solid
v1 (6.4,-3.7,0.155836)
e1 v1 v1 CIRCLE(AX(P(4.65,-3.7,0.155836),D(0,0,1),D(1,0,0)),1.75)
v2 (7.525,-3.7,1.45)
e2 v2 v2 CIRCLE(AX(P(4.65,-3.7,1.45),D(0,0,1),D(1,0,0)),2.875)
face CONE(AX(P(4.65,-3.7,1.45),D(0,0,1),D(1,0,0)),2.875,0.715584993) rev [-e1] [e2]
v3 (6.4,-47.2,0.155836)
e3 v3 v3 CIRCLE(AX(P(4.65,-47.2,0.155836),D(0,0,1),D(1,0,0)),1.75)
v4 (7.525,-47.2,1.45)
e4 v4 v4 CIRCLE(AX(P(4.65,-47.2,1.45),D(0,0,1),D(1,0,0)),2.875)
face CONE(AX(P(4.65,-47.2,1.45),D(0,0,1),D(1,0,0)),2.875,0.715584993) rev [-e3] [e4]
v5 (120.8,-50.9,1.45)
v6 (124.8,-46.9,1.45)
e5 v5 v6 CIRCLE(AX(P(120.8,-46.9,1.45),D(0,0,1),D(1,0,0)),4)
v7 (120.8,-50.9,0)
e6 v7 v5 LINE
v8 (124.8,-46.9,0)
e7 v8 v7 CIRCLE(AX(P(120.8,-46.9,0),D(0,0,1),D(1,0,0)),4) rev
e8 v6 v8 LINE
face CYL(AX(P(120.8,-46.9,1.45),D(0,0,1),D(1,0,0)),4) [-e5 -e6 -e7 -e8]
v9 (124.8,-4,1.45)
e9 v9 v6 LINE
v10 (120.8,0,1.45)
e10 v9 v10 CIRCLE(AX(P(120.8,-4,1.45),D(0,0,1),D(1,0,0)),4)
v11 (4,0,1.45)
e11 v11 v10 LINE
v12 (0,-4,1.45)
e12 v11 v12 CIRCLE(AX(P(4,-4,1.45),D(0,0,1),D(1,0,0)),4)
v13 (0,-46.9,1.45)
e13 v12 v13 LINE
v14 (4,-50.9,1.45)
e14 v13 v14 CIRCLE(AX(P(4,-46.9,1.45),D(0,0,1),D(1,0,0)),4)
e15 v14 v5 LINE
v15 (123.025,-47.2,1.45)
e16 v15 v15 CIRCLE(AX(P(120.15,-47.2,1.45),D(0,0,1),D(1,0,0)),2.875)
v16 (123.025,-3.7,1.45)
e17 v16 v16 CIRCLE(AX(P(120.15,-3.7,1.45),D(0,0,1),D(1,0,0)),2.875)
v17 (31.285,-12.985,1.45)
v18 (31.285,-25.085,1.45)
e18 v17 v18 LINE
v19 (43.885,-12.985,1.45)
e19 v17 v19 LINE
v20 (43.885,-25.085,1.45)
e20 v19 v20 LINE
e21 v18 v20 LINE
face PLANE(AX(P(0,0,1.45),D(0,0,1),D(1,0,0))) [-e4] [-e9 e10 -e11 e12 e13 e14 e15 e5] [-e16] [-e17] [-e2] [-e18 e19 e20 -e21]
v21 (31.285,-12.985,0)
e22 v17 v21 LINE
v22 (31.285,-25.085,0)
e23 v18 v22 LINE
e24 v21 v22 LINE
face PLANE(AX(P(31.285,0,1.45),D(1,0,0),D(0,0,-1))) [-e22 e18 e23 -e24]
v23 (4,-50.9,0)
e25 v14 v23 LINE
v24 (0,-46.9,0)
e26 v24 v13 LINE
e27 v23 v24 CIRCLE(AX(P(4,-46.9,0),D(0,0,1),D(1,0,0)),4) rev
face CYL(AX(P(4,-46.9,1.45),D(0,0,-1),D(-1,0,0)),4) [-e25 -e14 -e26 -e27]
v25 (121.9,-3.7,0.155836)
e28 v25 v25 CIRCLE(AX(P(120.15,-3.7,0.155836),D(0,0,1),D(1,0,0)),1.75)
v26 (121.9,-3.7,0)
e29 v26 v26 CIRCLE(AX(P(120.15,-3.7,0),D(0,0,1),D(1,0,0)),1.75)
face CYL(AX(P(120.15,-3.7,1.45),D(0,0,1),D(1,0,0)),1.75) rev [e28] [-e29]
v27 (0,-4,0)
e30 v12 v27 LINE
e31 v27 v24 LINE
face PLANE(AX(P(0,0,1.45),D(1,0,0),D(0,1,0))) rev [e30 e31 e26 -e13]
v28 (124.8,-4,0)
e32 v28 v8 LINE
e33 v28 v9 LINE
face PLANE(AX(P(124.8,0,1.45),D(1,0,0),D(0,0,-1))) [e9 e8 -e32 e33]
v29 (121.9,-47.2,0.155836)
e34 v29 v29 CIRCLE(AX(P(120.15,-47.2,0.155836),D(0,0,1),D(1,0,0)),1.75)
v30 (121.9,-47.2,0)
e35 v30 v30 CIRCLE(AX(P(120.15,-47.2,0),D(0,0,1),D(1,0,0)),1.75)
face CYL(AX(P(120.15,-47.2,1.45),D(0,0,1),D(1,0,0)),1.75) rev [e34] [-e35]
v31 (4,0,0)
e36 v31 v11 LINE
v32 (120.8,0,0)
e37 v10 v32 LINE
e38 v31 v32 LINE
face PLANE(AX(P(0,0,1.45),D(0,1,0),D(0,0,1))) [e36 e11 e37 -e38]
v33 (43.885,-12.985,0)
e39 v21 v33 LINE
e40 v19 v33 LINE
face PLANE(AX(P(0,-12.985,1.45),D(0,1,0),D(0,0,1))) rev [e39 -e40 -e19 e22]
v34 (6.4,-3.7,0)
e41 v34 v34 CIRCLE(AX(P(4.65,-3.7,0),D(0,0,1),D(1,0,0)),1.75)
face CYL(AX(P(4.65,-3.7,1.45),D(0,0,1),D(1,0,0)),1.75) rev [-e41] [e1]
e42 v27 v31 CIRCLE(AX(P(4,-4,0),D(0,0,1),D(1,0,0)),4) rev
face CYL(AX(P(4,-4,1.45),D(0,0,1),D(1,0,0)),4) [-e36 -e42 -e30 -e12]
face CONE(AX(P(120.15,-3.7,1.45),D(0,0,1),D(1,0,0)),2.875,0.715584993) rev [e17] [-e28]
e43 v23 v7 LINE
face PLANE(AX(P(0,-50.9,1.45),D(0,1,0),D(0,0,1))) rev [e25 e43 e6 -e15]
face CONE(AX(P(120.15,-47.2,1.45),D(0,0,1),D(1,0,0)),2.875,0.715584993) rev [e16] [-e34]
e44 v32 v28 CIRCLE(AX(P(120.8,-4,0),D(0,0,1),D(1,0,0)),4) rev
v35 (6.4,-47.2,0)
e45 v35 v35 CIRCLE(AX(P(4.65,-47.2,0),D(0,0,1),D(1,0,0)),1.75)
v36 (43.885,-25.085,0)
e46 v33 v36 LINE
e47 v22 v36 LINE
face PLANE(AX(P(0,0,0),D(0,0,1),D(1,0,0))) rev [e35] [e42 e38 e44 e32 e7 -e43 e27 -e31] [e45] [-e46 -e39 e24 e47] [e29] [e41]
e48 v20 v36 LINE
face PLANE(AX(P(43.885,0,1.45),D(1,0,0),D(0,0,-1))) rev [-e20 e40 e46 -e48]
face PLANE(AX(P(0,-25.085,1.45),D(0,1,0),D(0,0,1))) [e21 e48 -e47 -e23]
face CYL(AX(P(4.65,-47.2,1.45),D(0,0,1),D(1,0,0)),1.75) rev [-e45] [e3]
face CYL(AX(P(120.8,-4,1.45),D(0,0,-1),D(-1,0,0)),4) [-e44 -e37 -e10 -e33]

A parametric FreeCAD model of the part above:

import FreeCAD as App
import Part
import Sketcher
from FreeCAD import Vector
Q = App.Units.Quantity


def edges_at(feature, points):
    """Names of the edges that pass closest to the given points."""
    edges = feature.Shape.Edges
    near = lambda p: min(range(len(edges)), key=lambda i: edges[i].distToShape(Part.Vertex(*p))[0])
    return sorted({f"Edge{near(p) + 1}" for p in points})


def add_polygon(sketch, points):
    """Adds a closed chain of lines whose ends are joined by coincident constraints."""
    first, n = sketch.GeometryCount, len(points)
    for a, b in zip(points, points[1:] + points[:1]):
        sketch.addGeometry(Part.LineSegment(App.Vector(*a, 0), App.Vector(*b, 0)), False)
    for i in range(n):
        sketch.addConstraint(Sketcher.Constraint("Coincident", first + i, 2, first + (i + 1) % n, 1))

doc = App.newDocument("Part")
body = doc.addObject("PartDesign::Body", "Body")

sketch1 = body.newObject("Sketcher::SketchObject", "Sketch")
sketch1.AttachmentSupport = (doc.getObject("XY_Plane"), [""])
sketch1.MapMode = "FlatFace"
add_polygon(sketch1, [(0, 0), (0, -51), (125, -51), (125, 0)])
add_polygon(sketch1, [(44, -25), (31, -25), (31, -13), (44, -13)])
sketch1.addConstraint([
    Sketcher.Constraint("Vertical", 0),
    Sketcher.Constraint("Horizontal", 1),
    Sketcher.Constraint("Vertical", 2),
    Sketcher.Constraint("Horizontal", 3),
    Sketcher.Constraint("Horizontal", 4),
    Sketcher.Constraint("Vertical", 5),
    Sketcher.Constraint("Horizontal", 6),
    Sketcher.Constraint("Vertical", 7),
    Sketcher.Constraint("Coincident", 3, 2, -1, 1),
    Sketcher.Constraint("DistanceX", 1, 1, 1, 2, 124.8),
    Sketcher.Constraint("DistanceX", 4, 2, 4, 1, 12.6),
    Sketcher.Constraint("DistanceY", 0, 2, 0, 1, 50.9),
    Sketcher.Constraint("DistanceY", 5, 1, 5, 2, 12.1),
    Sketcher.Constraint("DistanceX", -1, 1, 4, 2, 31.285),
    Sketcher.Constraint("DistanceY", 4, 2, -1, 1, 25.085),
])
pad1 = body.newObject("PartDesign::Pad", "Pad")
pad1.Profile = sketch1
pad1.Length = 1.45

sketch2 = body.newObject("Sketcher::SketchObject", "Sketch001")
sketch2.AttachmentSupport = (doc.getObject("YZ_Plane"), [""])
sketch2.MapMode = "FlatFace"
sketch2.AttachmentOffset = App.Placement(Vector(0, 0, 4.65), App.Rotation())
add_polygon(sketch2, [(-3.7, 0), (-3.7, 1.45), (-6.58, 1.45), (-5.45, 0.16), (-5.45, 0)])
sketch2.addGeometry(Part.LineSegment(Vector(-3.7, 1.45, 0), Vector(-3.7, 0, 0)), True)
sketch2.addConstraint([
    Sketcher.Constraint("Vertical", 0),
    Sketcher.Constraint("Horizontal", 1),
    Sketcher.Constraint("Vertical", 3),
    Sketcher.Constraint("Horizontal", 4),
    Sketcher.Constraint("Vertical", 5),
    Sketcher.Constraint("Coincident", 5, 1, 0, 2),
    Sketcher.Constraint("PointOnObject", 3, 2, -1),
    Sketcher.Constraint("PointOnObject", 5, 2, -1),
    Sketcher.Constraint("Angle", 2, Q("-49 deg")),
    Sketcher.Constraint("DistanceX", 4, 1, 4, 2, 1.75),
    Sketcher.Constraint("DistanceY", 0, 1, 0, 2, 1.45),
    Sketcher.Constraint("DistanceX", 0, 2, -1, 1, 3.7),
    Sketcher.Constraint("DistanceX", 1, 2, 1, 1, 2.875),
])
groove = body.newObject("PartDesign::Groove", "Groove")
groove.Profile = sketch2
groove.ReferenceAxis = (sketch2, ["Axis0"])
groove.Angle = 360
doc.recompute()

linearpattern = body.newObject("PartDesign::LinearPattern", "LinearPattern")
linearpattern.Originals = [groove]
linearpattern.Direction = (doc.getObject("X_Axis"), [""])
linearpattern.Mode = "offset"
linearpattern.Offset = 115.5
linearpattern.Occurrences = 2
body.Tip = linearpattern
doc.recompute()

datumline = body.newObject("PartDesign::Line", "DatumLine")
datumline.Placement = App.Placement(Vector(0, 0, 0), App.Rotation(Vector(0, 0, 1), Vector(0.935828766, -0.35245499, 0)))
linearpattern2 = body.newObject("PartDesign::LinearPattern", "LinearPattern001")
linearpattern2.Originals = [groove]
linearpattern2.Direction = (datumline, [""])
linearpattern2.Mode = "offset"
linearpattern2.Offset = 123.420015
linearpattern2.Occurrences = 2
body.Tip = linearpattern2
doc.recompute()

linearpattern3 = body.newObject("PartDesign::LinearPattern", "LinearPattern002")
linearpattern3.Originals = [groove]
linearpattern3.Direction = (doc.getObject("Y_Axis"), [""])
linearpattern3.Mode = "offset"
linearpattern3.Offset = 43.5
linearpattern3.Occurrences = 2
linearpattern3.Reversed = True
body.Tip = linearpattern3
doc.recompute()

fillet = body.newObject("PartDesign::Fillet", "Fillet")
fillet.Base = (linearpattern3, edges_at(linearpattern3, [
    (124.8, -50.9, 0.725),
    (0, -50.9, 0.725),
    (0, 0, 0.725),
    (124.8, 0, 0.725),
]))
fillet.Radius = 4

doc.recompute()
